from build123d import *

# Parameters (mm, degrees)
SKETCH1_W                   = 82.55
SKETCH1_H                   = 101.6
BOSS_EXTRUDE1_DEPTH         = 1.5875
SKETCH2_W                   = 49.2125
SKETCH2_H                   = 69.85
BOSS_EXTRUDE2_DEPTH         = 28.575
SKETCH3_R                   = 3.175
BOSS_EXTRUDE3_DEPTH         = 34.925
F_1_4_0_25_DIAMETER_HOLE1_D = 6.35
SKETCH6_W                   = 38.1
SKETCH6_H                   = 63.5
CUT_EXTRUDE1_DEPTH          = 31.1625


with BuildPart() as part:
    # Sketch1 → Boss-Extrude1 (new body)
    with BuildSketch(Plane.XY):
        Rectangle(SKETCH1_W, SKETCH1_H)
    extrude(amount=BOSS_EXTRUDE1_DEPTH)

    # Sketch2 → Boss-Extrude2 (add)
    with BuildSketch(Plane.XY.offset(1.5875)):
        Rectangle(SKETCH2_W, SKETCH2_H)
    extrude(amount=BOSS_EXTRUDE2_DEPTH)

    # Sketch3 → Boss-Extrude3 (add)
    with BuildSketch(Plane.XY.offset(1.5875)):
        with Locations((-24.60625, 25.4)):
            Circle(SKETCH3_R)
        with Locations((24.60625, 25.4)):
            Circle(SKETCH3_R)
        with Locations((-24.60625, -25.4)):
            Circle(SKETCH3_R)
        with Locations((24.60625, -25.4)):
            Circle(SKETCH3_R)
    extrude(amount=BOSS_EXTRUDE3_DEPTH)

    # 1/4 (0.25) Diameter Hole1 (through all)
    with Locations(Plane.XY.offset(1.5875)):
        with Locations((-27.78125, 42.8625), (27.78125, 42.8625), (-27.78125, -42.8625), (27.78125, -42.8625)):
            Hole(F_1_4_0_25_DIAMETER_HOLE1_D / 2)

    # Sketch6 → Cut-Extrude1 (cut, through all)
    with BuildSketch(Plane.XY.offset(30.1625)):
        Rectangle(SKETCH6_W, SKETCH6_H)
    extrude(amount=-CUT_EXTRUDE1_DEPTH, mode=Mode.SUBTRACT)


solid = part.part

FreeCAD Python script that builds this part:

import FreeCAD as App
import Part
import Sketcher
Q = App.Units.Quantity


def add_polygon(sketch, points):
    """Adds a closed chain of lines whose ends are joined by coincident constraints."""
    first, n = sketch.GeometryCount, len(points)
    for a, b in zip(points, points[1:] + points[:1]):
        sketch.addGeometry(Part.LineSegment(App.Vector(*a, 0), App.Vector(*b, 0)), False)
    for i in range(n):
        sketch.addConstraint(Sketcher.Constraint("Coincident", first + i, 2, first + (i + 1) % n, 1))

doc = App.newDocument("Part")
body = doc.addObject("PartDesign::Body", "Body")

sketch1 = doc.addObject("Sketcher::SketchObject", "Sketch")
body.addObject(sketch1)
sketch1.AttachmentSupport = (doc.XY_Plane, [""])
sketch1.MapMode = "FlatFace"
add_polygon(sketch1, [(-41, 51), (-41, -51), (41, -51), (41, 51)])
sketch1.addConstraint(Sketcher.Constraint("Vertical", 0))
sketch1.addConstraint(Sketcher.Constraint("Horizontal", 1))
sketch1.addConstraint(Sketcher.Constraint("Vertical", 2))
sketch1.addConstraint(Sketcher.Constraint("Horizontal", 3))
sketch1.addConstraint(Sketcher.Constraint("Symmetric", 0, 2, 2, 2, -1, 1))
sketch1.addConstraint(Sketcher.Constraint("DistanceY", 0, 2, 0, 1, Q("4 in")))
sketch1.addConstraint(Sketcher.Constraint("DistanceX", 1, 1, 1, 2, Q("3.25 in")))
pad1 = doc.addObject("PartDesign::Pad", "Pad")
body.addObject(pad1)
pad1.Profile = sketch1
pad1.Length = Q("0.0625 in")

sketch2 = doc.addObject("Sketcher::SketchObject", "Sketch001")
body.addObject(sketch2)
sketch2.AttachmentSupport = (doc.XY_Plane, [""])
sketch2.MapMode = "FlatFace"
sketch2.AttachmentOffset = App.Placement(App.Vector(0, 0, 0.0625 * 25.4), App.Rotation())
add_polygon(sketch2, [(-25, 35), (-25, -35), (25, -35), (25, 35)])
sketch2.addConstraint(Sketcher.Constraint("Vertical", 0))
sketch2.addConstraint(Sketcher.Constraint("Horizontal", 1))
sketch2.addConstraint(Sketcher.Constraint("Vertical", 2))
sketch2.addConstraint(Sketcher.Constraint("Horizontal", 3))
sketch2.addConstraint(Sketcher.Constraint("Symmetric", 0, 2, 2, 2, -1, 1))
sketch2.addConstraint(Sketcher.Constraint("DistanceY", 0, 2, 0, 1, Q("2.75 in")))
sketch2.addConstraint(Sketcher.Constraint("DistanceX", 1, 1, 1, 2, Q("1.9375 in")))
pad2 = doc.addObject("PartDesign::Pad", "Pad001")
body.addObject(pad2)
pad2.Profile = sketch2
pad2.Length = Q("1.125 in")

sketch3 = doc.addObject("Sketcher::SketchObject", "Sketch002")
body.addObject(sketch3)
sketch3.AttachmentSupport = (doc.XY_Plane, [""])
sketch3.MapMode = "FlatFace"
sketch3.AttachmentOffset = App.Placement(App.Vector(0, 0, 0.0625 * 25.4), App.Rotation())
sketch3.addGeometry(Part.Circle(App.Vector(-24.6, 25.4, 0), App.Vector(0, 0, 1), 3.2), False)
sketch3.addGeometry(Part.Circle(App.Vector(24.6, 25.4, 0), App.Vector(0, 0, 1), 3.2), False)
sketch3.addGeometry(Part.Circle(App.Vector(-24.6, -25.4, 0), App.Vector(0, 0, 1), 3.2), False)
sketch3.addGeometry(Part.Circle(App.Vector(24.6, -25.4, 0), App.Vector(0, 0, 1), 3.2), False)
sketch3.addConstraint(Sketcher.Constraint("Equal", 0, 1))
sketch3.addConstraint(Sketcher.Constraint("Equal", 1, 2))
sketch3.addConstraint(Sketcher.Constraint("Equal", 2, 3))
sketch3.addConstraint(Sketcher.Constraint("Symmetric", 1, 3, 2, 3, -1, 1))
sketch3.addConstraint(Sketcher.Constraint("Symmetric", 0, 3, 3, 3, -1, 1))
sketch3.addConstraint(Sketcher.Constraint("Symmetric", 0, 3, 1, 3, -2))
sketch3.addConstraint(Sketcher.Constraint("Diameter", 0, Q("0.25 in")))
sketch3.addConstraint(Sketcher.Constraint("DistanceY", -1, 1, 0, 3, Q("1 in")))
sketch3.addConstraint(Sketcher.Constraint("DistanceX", 0, 3, -1, 1, Q("0.96875 in")))
pad3 = doc.addObject("PartDesign::Pad", "Pad002")
body.addObject(pad3)
pad3.Profile = sketch3
pad3.Length = Q("1.375 in")

sketch4 = doc.addObject("Sketcher::SketchObject", "Sketch003")
body.addObject(sketch4)
sketch4.AttachmentSupport = (doc.XY_Plane, [""])
sketch4.MapMode = "FlatFace"
sketch4.AttachmentOffset = App.Placement(App.Vector(0, 0, 0.0625 * 25.4), App.Rotation())
sketch4.addGeometry(Part.Circle(App.Vector(-27.8, 42.9, 0), App.Vector(0, 0, 1), 3.2), False)
sketch4.addGeometry(Part.Circle(App.Vector(27.8, 42.9, 0), App.Vector(0, 0, 1), 3.2), False)
sketch4.addGeometry(Part.Circle(App.Vector(-27.8, -42.9, 0), App.Vector(0, 0, 1), 3.2), False)
sketch4.addGeometry(Part.Circle(App.Vector(27.8, -42.9, 0), App.Vector(0, 0, 1), 3.2), False)
sketch4.addConstraint(Sketcher.Constraint("Equal", 0, 1))
sketch4.addConstraint(Sketcher.Constraint("Equal", 1, 2))
sketch4.addConstraint(Sketcher.Constraint("Equal", 2, 3))
sketch4.addConstraint(Sketcher.Constraint("Symmetric", 1, 3, 2, 3, -1, 1))
sketch4.addConstraint(Sketcher.Constraint("Symmetric", 0, 3, 3, 3, -1, 1))
sketch4.addConstraint(Sketcher.Constraint("Symmetric", 0, 3, 1, 3, -2))
sketch4.addConstraint(Sketcher.Constraint("Diameter", 0, Q("0.25 in")))
sketch4.addConstraint(Sketcher.Constraint("DistanceX", 0, 3, -1, 1, Q("1.09375 in")))
sketch4.addConstraint(Sketcher.Constraint("DistanceY", -1, 1, 0, 3, Q("1.6875 in")))
doc.recompute()
hole = doc.addObject("PartDesign::Hole", "Hole")
body.addObject(hole)
hole.Profile = sketch4
hole.ThreadType = "None"
hole.Diameter = Q("0.25 in")
hole.DepthType = "ThroughAll"

sketch5 = doc.addObject("Sketcher::SketchObject", "Sketch004")
body.addObject(sketch5)
sketch5.AttachmentSupport = (doc.XY_Plane, [""])
sketch5.MapMode = "FlatFace"
sketch5.AttachmentOffset = App.Placement(App.Vector(0, 0, 1.1875 * 25.4), App.Rotation())
add_polygon(sketch5, [(-19, 32), (-19, -32), (19, -32), (19, 32)])
sketch5.addConstraint(Sketcher.Constraint("Vertical", 0))
sketch5.addConstraint(Sketcher.Constraint("Horizontal", 1))
sketch5.addConstraint(Sketcher.Constraint("Vertical", 2))
sketch5.addConstraint(Sketcher.Constraint("Horizontal", 3))
sketch5.addConstraint(Sketcher.Constraint("Symmetric", 0, 2, 2, 2, -1, 1))
sketch5.addConstraint(Sketcher.Constraint("DistanceX", 1, 1, 1, 2, Q("1.5 in")))
sketch5.addConstraint(Sketcher.Constraint("DistanceY", 0, 2, 0, 1, Q("2.5 in")))
pocket1 = doc.addObject("PartDesign::Pocket", "Pocket")
body.addObject(pocket1)
pocket1.Profile = sketch5
pocket1.Type = "ThroughAll"

doc.recompute()
